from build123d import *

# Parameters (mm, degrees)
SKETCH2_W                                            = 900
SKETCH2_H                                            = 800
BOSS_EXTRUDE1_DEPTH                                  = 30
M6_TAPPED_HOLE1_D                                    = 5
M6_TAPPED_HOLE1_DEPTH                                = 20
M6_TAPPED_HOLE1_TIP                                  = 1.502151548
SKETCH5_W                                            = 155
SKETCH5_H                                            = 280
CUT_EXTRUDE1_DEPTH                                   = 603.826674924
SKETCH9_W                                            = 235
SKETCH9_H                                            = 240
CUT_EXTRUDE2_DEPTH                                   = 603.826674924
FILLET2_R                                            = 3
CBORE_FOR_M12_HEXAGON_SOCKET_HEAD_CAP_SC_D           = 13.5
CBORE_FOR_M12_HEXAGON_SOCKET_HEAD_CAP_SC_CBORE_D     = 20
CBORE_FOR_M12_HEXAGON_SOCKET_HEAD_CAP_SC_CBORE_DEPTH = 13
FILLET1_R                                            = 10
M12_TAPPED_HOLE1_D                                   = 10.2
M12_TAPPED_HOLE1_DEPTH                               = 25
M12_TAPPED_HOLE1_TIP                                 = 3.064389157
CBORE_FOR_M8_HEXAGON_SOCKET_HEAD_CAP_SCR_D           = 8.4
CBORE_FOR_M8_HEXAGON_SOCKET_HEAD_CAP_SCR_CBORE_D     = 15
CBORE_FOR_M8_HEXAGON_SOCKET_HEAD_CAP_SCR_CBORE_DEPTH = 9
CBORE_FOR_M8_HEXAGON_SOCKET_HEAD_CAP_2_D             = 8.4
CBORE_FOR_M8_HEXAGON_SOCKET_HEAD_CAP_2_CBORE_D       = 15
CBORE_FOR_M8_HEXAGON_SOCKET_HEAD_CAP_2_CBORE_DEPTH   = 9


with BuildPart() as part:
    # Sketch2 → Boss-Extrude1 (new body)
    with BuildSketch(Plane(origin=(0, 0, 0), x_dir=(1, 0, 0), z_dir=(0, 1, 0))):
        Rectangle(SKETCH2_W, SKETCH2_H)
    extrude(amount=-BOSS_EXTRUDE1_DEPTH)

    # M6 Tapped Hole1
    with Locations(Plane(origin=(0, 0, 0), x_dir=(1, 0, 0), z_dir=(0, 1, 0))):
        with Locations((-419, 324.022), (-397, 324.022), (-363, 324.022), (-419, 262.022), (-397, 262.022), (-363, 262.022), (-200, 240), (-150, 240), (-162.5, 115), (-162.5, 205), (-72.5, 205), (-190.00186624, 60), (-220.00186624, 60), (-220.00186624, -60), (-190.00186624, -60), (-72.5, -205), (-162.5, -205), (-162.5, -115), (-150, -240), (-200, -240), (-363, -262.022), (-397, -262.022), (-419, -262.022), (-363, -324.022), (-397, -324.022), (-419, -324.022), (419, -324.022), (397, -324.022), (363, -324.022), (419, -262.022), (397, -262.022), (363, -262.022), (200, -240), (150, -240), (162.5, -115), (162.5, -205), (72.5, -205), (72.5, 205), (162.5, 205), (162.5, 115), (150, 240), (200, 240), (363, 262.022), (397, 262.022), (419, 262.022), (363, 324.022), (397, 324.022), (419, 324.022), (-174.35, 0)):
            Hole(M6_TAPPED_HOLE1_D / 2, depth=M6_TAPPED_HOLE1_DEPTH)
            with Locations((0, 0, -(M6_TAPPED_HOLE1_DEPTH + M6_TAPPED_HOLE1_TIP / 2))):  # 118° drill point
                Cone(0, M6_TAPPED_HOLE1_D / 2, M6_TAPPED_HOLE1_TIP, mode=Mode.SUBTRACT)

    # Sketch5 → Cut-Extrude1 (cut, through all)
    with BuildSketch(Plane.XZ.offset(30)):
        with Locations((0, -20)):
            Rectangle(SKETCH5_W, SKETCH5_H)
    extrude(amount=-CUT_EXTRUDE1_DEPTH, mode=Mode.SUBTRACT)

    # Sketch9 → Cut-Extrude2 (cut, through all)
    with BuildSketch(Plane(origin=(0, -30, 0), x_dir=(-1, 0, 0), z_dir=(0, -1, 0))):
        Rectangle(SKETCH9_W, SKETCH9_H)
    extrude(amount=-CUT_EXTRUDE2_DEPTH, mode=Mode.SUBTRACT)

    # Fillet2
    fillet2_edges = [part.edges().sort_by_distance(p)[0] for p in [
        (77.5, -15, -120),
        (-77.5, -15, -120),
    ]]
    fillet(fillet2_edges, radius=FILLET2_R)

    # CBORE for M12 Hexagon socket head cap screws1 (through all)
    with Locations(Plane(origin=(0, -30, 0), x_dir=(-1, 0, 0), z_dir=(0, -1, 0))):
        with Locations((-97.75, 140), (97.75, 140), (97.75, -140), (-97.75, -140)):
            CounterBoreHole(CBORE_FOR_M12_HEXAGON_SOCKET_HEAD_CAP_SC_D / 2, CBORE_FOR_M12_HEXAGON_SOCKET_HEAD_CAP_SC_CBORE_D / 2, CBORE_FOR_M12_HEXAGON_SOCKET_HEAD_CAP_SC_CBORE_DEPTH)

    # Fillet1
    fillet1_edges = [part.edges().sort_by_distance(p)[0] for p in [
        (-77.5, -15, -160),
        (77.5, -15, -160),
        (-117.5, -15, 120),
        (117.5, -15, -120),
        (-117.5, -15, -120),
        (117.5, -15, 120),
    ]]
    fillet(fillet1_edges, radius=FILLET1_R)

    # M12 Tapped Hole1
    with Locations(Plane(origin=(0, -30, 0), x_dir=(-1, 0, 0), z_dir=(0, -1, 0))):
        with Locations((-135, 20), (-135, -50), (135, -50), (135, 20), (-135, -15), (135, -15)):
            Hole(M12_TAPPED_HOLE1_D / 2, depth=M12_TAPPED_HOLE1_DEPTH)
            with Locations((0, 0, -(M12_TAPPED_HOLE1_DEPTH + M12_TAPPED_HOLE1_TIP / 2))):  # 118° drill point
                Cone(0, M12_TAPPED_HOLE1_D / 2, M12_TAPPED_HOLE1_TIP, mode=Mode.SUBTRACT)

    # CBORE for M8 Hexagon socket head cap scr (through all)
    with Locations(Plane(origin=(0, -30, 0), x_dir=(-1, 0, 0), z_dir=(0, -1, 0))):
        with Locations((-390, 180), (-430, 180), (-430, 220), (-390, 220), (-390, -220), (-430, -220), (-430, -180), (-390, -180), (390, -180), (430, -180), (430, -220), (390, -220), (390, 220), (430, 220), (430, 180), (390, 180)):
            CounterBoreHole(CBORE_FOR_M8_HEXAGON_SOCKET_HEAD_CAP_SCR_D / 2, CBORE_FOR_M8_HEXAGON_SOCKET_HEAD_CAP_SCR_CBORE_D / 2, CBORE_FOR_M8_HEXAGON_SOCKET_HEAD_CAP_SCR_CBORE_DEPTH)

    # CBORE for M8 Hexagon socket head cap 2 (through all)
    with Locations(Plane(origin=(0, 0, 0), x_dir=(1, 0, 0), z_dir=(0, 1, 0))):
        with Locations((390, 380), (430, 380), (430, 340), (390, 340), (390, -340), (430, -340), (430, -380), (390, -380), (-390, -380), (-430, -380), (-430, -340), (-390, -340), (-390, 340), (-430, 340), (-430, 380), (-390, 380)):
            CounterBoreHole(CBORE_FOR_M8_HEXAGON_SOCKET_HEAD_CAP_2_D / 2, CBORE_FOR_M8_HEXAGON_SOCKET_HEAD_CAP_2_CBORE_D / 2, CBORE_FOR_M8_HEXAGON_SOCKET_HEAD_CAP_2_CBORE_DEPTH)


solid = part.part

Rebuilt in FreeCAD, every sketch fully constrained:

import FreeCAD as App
import Part
import Sketcher

V = App.Vector


def edges_at(feature, points):
    """Names of the edges that pass closest to the given points."""
    edges = feature.Shape.Edges
    near = lambda p: min(range(len(edges)), key=lambda i: edges[i].distToShape(Part.Vertex(*p))[0])
    return sorted({f"Edge{near(p) + 1}" for p in points})


def add_polygon(sketch, points):
    """Adds a closed chain of lines whose ends are joined by coincident constraints."""
    first, n = sketch.GeometryCount, len(points)
    for a, b in zip(points, points[1:] + points[:1]):
        sketch.addGeometry(Part.LineSegment(App.Vector(*a, 0), App.Vector(*b, 0)), False)
    for i in range(n):
        sketch.addConstraint(Sketcher.Constraint("Coincident", first + i, 2, first + (i + 1) % n, 1))

doc = App.newDocument("Part")
body = doc.addObject("PartDesign::Body", "Body")

# Sketch on XZ plane
sketch1 = doc.addObject("Sketcher::SketchObject", "Sketch")
body.addObject(sketch1)
sketch1.AttachmentSupport = (doc.XZ_Plane, [""])
sketch1.MapMode = "FlatFace"
add_polygon(sketch1, [(-450, -400), (-450, 400), (450, 400), (450, -400)])  # lines 0-3
sketch1.addConstraint([
    Sketcher.Constraint("Vertical", 0),
    Sketcher.Constraint("Horizontal", 1),
    Sketcher.Constraint("Vertical", 2),
    Sketcher.Constraint("Horizontal", 3),
    Sketcher.Constraint("Symmetric", 0, 2, 2, 2, -1, 1),
    Sketcher.Constraint("DistanceX", 1, 1, 1, 2, 900.0),
    Sketcher.Constraint("DistanceY", 0, 1, 0, 2, 800.0),
])
pad1 = doc.addObject("PartDesign::Pad", "Pad")
body.addObject(pad1)
pad1.Profile = sketch1
pad1.Length = 30

# Sketch on XZ plane
sketch2 = doc.addObject("Sketcher::SketchObject", "Sketch001")
body.addObject(sketch2)
sketch2.AttachmentSupport = (doc.XZ_Plane, [""])
sketch2.MapMode = "FlatFace"
sketch2.addGeometry([
    Part.Circle(V(-419, -324, 0), V(0, 0, 1), 2.5),  # 0
    Part.Circle(V(-397, -324, 0), V(0, 0, 1), 2.5),  # 1
    Part.Circle(V(-363, -324, 0), V(0, 0, 1), 2.5),  # 2
    Part.Circle(V(-419, -262, 0), V(0, 0, 1), 2.5),  # 3
    Part.Circle(V(-397, -262, 0), V(0, 0, 1), 2.5),  # 4
    Part.Circle(V(-363, -262, 0), V(0, 0, 1), 2.5),  # 5
    Part.Circle(V(-200, -240, 0), V(0, 0, 1), 2.5),  # 6
    Part.Circle(V(-150, -240, 0), V(0, 0, 1), 2.5),  # 7
    Part.Circle(V(-162.5, -115, 0), V(0, 0, 1), 2.5),  # 8
    Part.Circle(V(-162.5, -205, 0), V(0, 0, 1), 2.5),  # 9
    Part.Circle(V(-72.5, -205, 0), V(0, 0, 1), 2.5),  # 10
    Part.Circle(V(-190, -60, 0), V(0, 0, 1), 2.5),  # 11
    Part.Circle(V(-220, -60, 0), V(0, 0, 1), 2.5),  # 12
    Part.Circle(V(-220, 60, 0), V(0, 0, 1), 2.5),  # 13
    Part.Circle(V(-190, 60, 0), V(0, 0, 1), 2.5),  # 14
    Part.Circle(V(-72.5, 205, 0), V(0, 0, 1), 2.5),  # 15
    Part.Circle(V(-162.5, 205, 0), V(0, 0, 1), 2.5),  # 16
    Part.Circle(V(-162.5, 115, 0), V(0, 0, 1), 2.5),  # 17
    Part.Circle(V(-150, 240, 0), V(0, 0, 1), 2.5),  # 18
    Part.Circle(V(-200, 240, 0), V(0, 0, 1), 2.5),  # 19
    Part.Circle(V(-363, 262, 0), V(0, 0, 1), 2.5),  # 20
    Part.Circle(V(-397, 262, 0), V(0, 0, 1), 2.5),  # 21
    Part.Circle(V(-419, 262, 0), V(0, 0, 1), 2.5),  # 22
    Part.Circle(V(-363, 324, 0), V(0, 0, 1), 2.5),  # 23
    Part.Circle(V(-397, 324, 0), V(0, 0, 1), 2.5),  # 24
    Part.Circle(V(-419, 324, 0), V(0, 0, 1), 2.5),  # 25
    Part.Circle(V(419, 324, 0), V(0, 0, 1), 2.5),  # 26
    Part.Circle(V(397, 324, 0), V(0, 0, 1), 2.5),  # 27
    Part.Circle(V(363, 324, 0), V(0, 0, 1), 2.5),  # 28
    Part.Circle(V(419, 262, 0), V(0, 0, 1), 2.5),  # 29
    Part.Circle(V(397, 262, 0), V(0, 0, 1), 2.5),  # 30
    Part.Circle(V(363, 262, 0), V(0, 0, 1), 2.5),  # 31
    Part.Circle(V(200, 240, 0), V(0, 0, 1), 2.5),  # 32
    Part.Circle(V(150, 240, 0), V(0, 0, 1), 2.5),  # 33
    Part.Circle(V(162.5, 115, 0), V(0, 0, 1), 2.5),  # 34
    Part.Circle(V(162.5, 205, 0), V(0, 0, 1), 2.5),  # 35
    Part.Circle(V(72.5, 205, 0), V(0, 0, 1), 2.5),  # 36
    Part.Circle(V(72.5, -205, 0), V(0, 0, 1), 2.5),  # 37
    Part.Circle(V(162.5, -205, 0), V(0, 0, 1), 2.5),  # 38
    Part.Circle(V(162.5, -115, 0), V(0, 0, 1), 2.5),  # 39
    Part.Circle(V(150, -240, 0), V(0, 0, 1), 2.5),  # 40
    Part.Circle(V(200, -240, 0), V(0, 0, 1), 2.5),  # 41
    Part.Circle(V(363, -262, 0), V(0, 0, 1), 2.5),  # 42
    Part.Circle(V(397, -262, 0), V(0, 0, 1), 2.5),  # 43
    Part.Circle(V(419, -262, 0), V(0, 0, 1), 2.5),  # 44
    Part.Circle(V(363, -324, 0), V(0, 0, 1), 2.5),  # 45
    Part.Circle(V(397, -324, 0), V(0, 0, 1), 2.5),  # 46
    Part.Circle(V(419, -324, 0), V(0, 0, 1), 2.5),  # 47
    Part.Circle(V(-174.3, 0, 0), V(0, 0, 1), 2.5),  # 48
], False)
sketch2.addConstraint([
    Sketcher.Constraint("Equal", 0, 1),
    Sketcher.Constraint("Equal", 1, 2),
    Sketcher.Constraint("Equal", 2, 3),
    Sketcher.Constraint("Equal", 3, 4),
    Sketcher.Constraint("Equal", 4, 5),
    Sketcher.Constraint("Equal", 5, 6),
    Sketcher.Constraint("Equal", 6, 7),
    Sketcher.Constraint("Equal", 7, 8),
    Sketcher.Constraint("Equal", 8, 9),
    Sketcher.Constraint("Equal", 9, 10),
    Sketcher.Constraint("Equal", 10, 11),
    Sketcher.Constraint("Equal", 11, 12),
    Sketcher.Constraint("Equal", 12, 13),
    Sketcher.Constraint("Equal", 13, 14),
    Sketcher.Constraint("Equal", 14, 15),
    Sketcher.Constraint("Equal", 15, 16),
    Sketcher.Constraint("Equal", 16, 17),
    Sketcher.Constraint("Equal", 17, 18),
    Sketcher.Constraint("Equal", 18, 19),
    Sketcher.Constraint("Equal", 19, 20),
    Sketcher.Constraint("Equal", 20, 21),
    Sketcher.Constraint("Equal", 21, 22),
    Sketcher.Constraint("Equal", 22, 23),
    Sketcher.Constraint("Equal", 23, 24),
    Sketcher.Constraint("Equal", 24, 25),
    Sketcher.Constraint("Equal", 25, 26),
    Sketcher.Constraint("Equal", 26, 27),
    Sketcher.Constraint("Equal", 27, 28),
    Sketcher.Constraint("Equal", 28, 29),
    Sketcher.Constraint("Equal", 29, 30),
    Sketcher.Constraint("Equal", 30, 31),
    Sketcher.Constraint("Equal", 31, 32),
    Sketcher.Constraint("Equal", 32, 33),
    Sketcher.Constraint("Equal", 33, 34),
    Sketcher.Constraint("Equal", 34, 35),
    Sketcher.Constraint("Equal", 35, 36),
    Sketcher.Constraint("Equal", 36, 37),
    Sketcher.Constraint("Equal", 37, 38),
    Sketcher.Constraint("Equal", 38, 39),
    Sketcher.Constraint("Equal", 39, 40),
    Sketcher.Constraint("Equal", 40, 41),
    Sketcher.Constraint("Equal", 41, 42),
    Sketcher.Constraint("Equal", 42, 43),
    Sketcher.Constraint("Equal", 43, 44),
    Sketcher.Constraint("Equal", 44, 45),
    Sketcher.Constraint("Equal", 45, 46),
    Sketcher.Constraint("Equal", 46, 47),
    Sketcher.Constraint("Equal", 47, 48),
    Sketcher.Constraint("Symmetric", 0, 3, 26, 3, -1, 1),
    Sketcher.Constraint("Symmetric", 1, 3, 27, 3, -1, 1),
    Sketcher.Constraint("Symmetric", 2, 3, 28, 3, -1, 1),
    Sketcher.Constraint("Symmetric", 3, 3, 29, 3, -1, 1),
    Sketcher.Constraint("Symmetric", 4, 3, 30, 3, -1, 1),
    Sketcher.Constraint("Symmetric", 5, 3, 31, 3, -1, 1),
    Sketcher.Constraint("Symmetric", 6, 3, 32, 3, -1, 1),
    Sketcher.Constraint("Symmetric", 7, 3, 33, 3, -1, 1),
    Sketcher.Constraint("Symmetric", 8, 3, 34, 3, -1, 1),
    Sketcher.Constraint("Symmetric", 9, 3, 35, 3, -1, 1),
    Sketcher.Constraint("Symmetric", 10, 3, 36, 3, -1, 1),
    Sketcher.Constraint("Symmetric", 15, 3, 37, 3, -1, 1),
    Sketcher.Constraint("Symmetric", 16, 3, 38, 3, -1, 1),
    Sketcher.Constraint("Symmetric", 17, 3, 39, 3, -1, 1),
    Sketcher.Constraint("Symmetric", 18, 3, 40, 3, -1, 1),
    Sketcher.Constraint("Symmetric", 19, 3, 41, 3, -1, 1),
    Sketcher.Constraint("Symmetric", 20, 3, 42, 3, -1, 1),
    Sketcher.Constraint("Symmetric", 21, 3, 43, 3, -1, 1),
    Sketcher.Constraint("Symmetric", 22, 3, 44, 3, -1, 1),
    Sketcher.Constraint("Symmetric", 23, 3, 45, 3, -1, 1),
    Sketcher.Constraint("Symmetric", 24, 3, 46, 3, -1, 1),
    Sketcher.Constraint("Symmetric", 25, 3, 47, 3, -1, 1),
    Sketcher.Constraint("Symmetric", 25, 3, 26, 3, -2),
    Sketcher.Constraint("Symmetric", 24, 3, 27, 3, -2),
    Sketcher.Constraint("Symmetric", 23, 3, 28, 3, -2),
    Sketcher.Constraint("Symmetric", 22, 3, 29, 3, -2),
    Sketcher.Constraint("Symmetric", 21, 3, 30, 3, -2),
    Sketcher.Constraint("Symmetric", 20, 3, 31, 3, -2),
    Sketcher.Constraint("Symmetric", 19, 3, 32, 3, -2),
    Sketcher.Constraint("Symmetric", 18, 3, 33, 3, -2),
    Sketcher.Constraint("Symmetric", 17, 3, 34, 3, -2),
    Sketcher.Constraint("Symmetric", 16, 3, 35, 3, -2),
    Sketcher.Constraint("Symmetric", 15, 3, 36, 3, -2),
    Sketcher.Constraint("Symmetric", 12, 3, 13, 3, -1),
    Sketcher.Constraint("Symmetric", 11, 3, 14, 3, -1),
    Sketcher.Constraint("PointOnObject", 48, 3, -1),
    Sketcher.Constraint("Horizontal", 0, 3, 1, 3),
    Sketcher.Constraint("Horizontal", 1, 3, 2, 3),
    Sketcher.Constraint("Horizontal", 3, 3, 4, 3),
    Sketcher.Constraint("Horizontal", 4, 3, 5, 3),
    Sketcher.Constraint("Horizontal", 6, 3, 7, 3),
    Sketcher.Constraint("Horizontal", 9, 3, 10, 3),
    Sketcher.Constraint("Horizontal", 11, 3, 12, 3),
    Sketcher.Constraint("Vertical", 0, 3, 3, 3),
    Sketcher.Constraint("Vertical", 1, 3, 4, 3),
    Sketcher.Constraint("Vertical", 2, 3, 5, 3),
    Sketcher.Constraint("Vertical", 8, 3, 9, 3),
    Sketcher.Constraint("Diameter", 0, 5.0),
    Sketcher.Constraint("DistanceX", 0, 3, -1, 1, 419.0),
    Sketcher.Constraint("DistanceX", 1, 3, -1, 1, 397.0),
    Sketcher.Constraint("DistanceX", 2, 3, -1, 1, 363.0),
    Sketcher.Constraint("DistanceX", 6, 3, -1, 1, 200.0),
    Sketcher.Constraint("DistanceY", 6, 3, -1, 1, 240.0),
    Sketcher.Constraint("DistanceX", 7, 3, -1, 1, 150.0),
    Sketcher.Constraint("DistanceY", 8, 3, -1, 1, 115.0),
    Sketcher.Constraint("DistanceY", 9, 3, -1, 1, 205.0),
    Sketcher.Constraint("DistanceY", 11, 3, -1, 1, 60.0),
    Sketcher.Constraint("DistanceY", 0, 3, 3, 3, 62.0),
    Sketcher.Constraint("DistanceX", 9, 3, 10, 3, 90.0),
    Sketcher.Constraint("DistanceX", 12, 3, 11, 3, 30.0),
    Sketcher.Constraint("DistanceX", 15, 3, 34, 3, 235.0),
    Sketcher.Constraint("DistanceX", 48, 3, -1, 1, 174.35),
    Sketcher.Constraint("DistanceY", 0, 3, -1, 1, 324.022),
    Sketcher.Constraint("DistanceX", 11, 3, -1, 1, 190.001866),
])
doc.recompute()
hole = doc.addObject("PartDesign::Hole", "Hole")
body.addObject(hole)
hole.Profile = sketch2
hole.ThreadType = "None"
hole.Diameter = 5
hole.DepthType = "Dimension"
hole.Depth = 20
hole.DrillPoint = "Angled"
hole.DrillPointAngle = 118
hole.Reversed = True

# Sketch on XZ plane
sketch3 = doc.addObject("Sketcher::SketchObject", "Sketch002")
body.addObject(sketch3)
sketch3.AttachmentSupport = (doc.XZ_Plane, [""])
sketch3.MapMode = "FlatFace"
sketch3.AttachmentOffset = App.Placement(V(0, 0, 30), App.Rotation())
add_polygon(sketch3, [(-78, 120), (-78, -160), (78, -160), (78, 120)])  # lines 0-3
sketch3.addConstraint([
    Sketcher.Constraint("Vertical", 0),
    Sketcher.Constraint("Horizontal", 1),
    Sketcher.Constraint("Vertical", 2),
    Sketcher.Constraint("Horizontal", 3),
    Sketcher.Constraint("DistanceX", 1, 1, 1, 2, 155.0),
    Sketcher.Constraint("DistanceY", 0, 2, 0, 1, 280.0),
    Sketcher.Constraint("DistanceY", 0, 2, -1, 1, 160.0),
    Sketcher.Constraint("DistanceX", 0, 2, -1, 1, 77.5),
])
pocket1 = doc.addObject("PartDesign::Pocket", "Pocket")
body.addObject(pocket1)
pocket1.Profile = sketch3
pocket1.Type = "ThroughAll"

# Sketch on XZ plane
sketch4 = doc.addObject("Sketcher::SketchObject", "Sketch003")
body.addObject(sketch4)
sketch4.AttachmentSupport = (doc.XZ_Plane, [""])
sketch4.MapMode = "FlatFace"
sketch4.AttachmentOffset = App.Placement(V(0, 0, 30), App.Rotation())
add_polygon(sketch4, [(118, -120), (118, 120), (-118, 120), (-118, -120)])  # lines 0-3
sketch4.addConstraint([
    Sketcher.Constraint("Vertical", 0),
    Sketcher.Constraint("Horizontal", 1),
    Sketcher.Constraint("Vertical", 2),
    Sketcher.Constraint("Horizontal", 3),
    Sketcher.Constraint("Symmetric", 0, 2, 2, 2, -1, 1),
    Sketcher.Constraint("DistanceX", 1, 2, 1, 1, 235.0),
    Sketcher.Constraint("DistanceY", 0, 1, 0, 2, 240.0),
])
pocket2 = doc.addObject("PartDesign::Pocket", "Pocket001")
body.addObject(pocket2)
pocket2.Profile = sketch4
pocket2.Type = "ThroughAll"
doc.recompute()

fillet = doc.addObject("PartDesign::Fillet", "Fillet")
body.addObject(fillet)
fillet.Base = (pocket2, edges_at(pocket2, [(77.5, -15, -120), (-77.5, -15, -120)]))
fillet.Radius = 3

# Sketch on XZ plane
sketch5 = doc.addObject("Sketcher::SketchObject", "Sketch004")
body.addObject(sketch5)
sketch5.AttachmentSupport = (doc.XZ_Plane, [""])
sketch5.MapMode = "FlatFace"
sketch5.AttachmentOffset = App.Placement(V(0, 0, 30), App.Rotation())
sketch5.addGeometry([
    Part.Circle(V(98, -140, 0), V(0, 0, 1), 7),
    Part.Circle(V(-98, -140, 0), V(0, 0, 1), 7),
    Part.Circle(V(-98, 140, 0), V(0, 0, 1), 7),
    Part.Circle(V(98, 140, 0), V(0, 0, 1), 7),
], False)
sketch5.addConstraint([
    Sketcher.Constraint("Equal", 0, 1),
    Sketcher.Constraint("Equal", 1, 2),
    Sketcher.Constraint("Equal", 2, 3),
    Sketcher.Constraint("Symmetric", 0, 3, 2, 3, -1, 1),
    Sketcher.Constraint("Symmetric", 1, 3, 3, 3, -1, 1),
    Sketcher.Constraint("Symmetric", 0, 3, 1, 3, -2),
    Sketcher.Constraint("Diameter", 0, 13.5),
    Sketcher.Constraint("DistanceY", 0, 3, -1, 1, 140.0),
    Sketcher.Constraint("DistanceX", 1, 3, 0, 3, 195.5),
])
doc.recompute()
hole2 = doc.addObject("PartDesign::Hole", "Hole001")
body.addObject(hole2)
hole2.Profile = sketch5
hole2.ThreadType = "None"
hole2.Diameter = 13.5
hole2.DepthType = "ThroughAll"
hole2.HoleCutType = "Counterbore"
hole2.HoleCutDiameter = 20
hole2.HoleCutDepth = 13
doc.recompute()

fillet2 = doc.addObject("PartDesign::Fillet", "Fillet001")
body.addObject(fillet2)
fillet2.Base = (hole2, edges_at(hole2, [
    (-77.5, -15, -160),
    (77.5, -15, -160),
    (-117.5, -15, 120),
    (117.5, -15, -120),
    (-117.5, -15, -120),
    (117.5, -15, 120),
]))
fillet2.Radius = 10

# Sketch on XZ plane
sketch6 = doc.addObject("Sketcher::SketchObject", "Sketch005")
body.addObject(sketch6)
sketch6.AttachmentSupport = (doc.XZ_Plane, [""])
sketch6.MapMode = "FlatFace"
sketch6.AttachmentOffset = App.Placement(V(0, 0, 30), App.Rotation())
sketch6.addGeometry([
    Part.Circle(V(135, -20, 0), V(0, 0, 1), 5),  # 0
    Part.Circle(V(135, 50, 0), V(0, 0, 1), 5),  # 1
    Part.Circle(V(-135, 50, 0), V(0, 0, 1), 5),  # 2
    Part.Circle(V(-135, -20, 0), V(0, 0, 1), 5),  # 3
    Part.Circle(V(135, 15, 0), V(0, 0, 1), 5),  # 4
    Part.Circle(V(-135, 15, 0), V(0, 0, 1), 5),  # 5
], False)
sketch6.addConstraint([
    Sketcher.Constraint("Equal", 0, 1),
    Sketcher.Constraint("Equal", 1, 2),
    Sketcher.Constraint("Equal", 2, 3),
    Sketcher.Constraint("Equal", 3, 4),
    Sketcher.Constraint("Equal", 4, 5),
    Sketcher.Constraint("Symmetric", 1, 3, 2, 3, -2),
    Sketcher.Constraint("Symmetric", 0, 3, 3, 3, -2),
    Sketcher.Constraint("Symmetric", 4, 3, 5, 3, -2),
    Sketcher.Constraint("Vertical", 0, 3, 1, 3),
    Sketcher.Constraint("Vertical", 1, 3, 4, 3),
    Sketcher.Constraint("Diameter", 0, 10.2),
    Sketcher.Constraint("DistanceX", -1, 1, 0, 3, 135.0),
    Sketcher.Constraint("DistanceY", 0, 3, -1, 1, 20.0),
    Sketcher.Constraint("DistanceY", -1, 1, 1, 3, 50.0),
    Sketcher.Constraint("DistanceY", -1, 1, 4, 3, 15.0),
])
doc.recompute()
hole3 = doc.addObject("PartDesign::Hole", "Hole002")
body.addObject(hole3)
hole3.Profile = sketch6
hole3.ThreadType = "None"
hole3.Diameter = 10.2
hole3.DepthType = "Dimension"
hole3.Depth = 25
hole3.DrillPoint = "Angled"
hole3.DrillPointAngle = 118

# Sketch on XZ plane
sketch7 = doc.addObject("Sketcher::SketchObject", "Sketch006")
body.addObject(sketch7)
sketch7.AttachmentSupport = (doc.XZ_Plane, [""])
sketch7.MapMode = "FlatFace"
sketch7.AttachmentOffset = App.Placement(V(0, 0, 30), App.Rotation())
sketch7.addGeometry([
    Part.Circle(V(390, -180, 0), V(0, 0, 1), 4.2),  # 0
    Part.Circle(V(430, -180, 0), V(0, 0, 1), 4.2),  # 1
    Part.Circle(V(430, -220, 0), V(0, 0, 1), 4.2),  # 2
    Part.Circle(V(390, -220, 0), V(0, 0, 1), 4.2),  # 3
    Part.Circle(V(390, 220, 0), V(0, 0, 1), 4.2),  # 4
    Part.Circle(V(430, 220, 0), V(0, 0, 1), 4.2),  # 5
    Part.Circle(V(430, 180, 0), V(0, 0, 1), 4.2),  # 6
    Part.Circle(V(390, 180, 0), V(0, 0, 1), 4.2),  # 7
    Part.Circle(V(-390, 180, 0), V(0, 0, 1), 4.2),  # 8
    Part.Circle(V(-430, 180, 0), V(0, 0, 1), 4.2),  # 9
    Part.Circle(V(-430, 220, 0), V(0, 0, 1), 4.2),  # 10
    Part.Circle(V(-390, 220, 0), V(0, 0, 1), 4.2),  # 11
    Part.Circle(V(-390, -220, 0), V(0, 0, 1), 4.2),  # 12
    Part.Circle(V(-430, -220, 0), V(0, 0, 1), 4.2),  # 13
    Part.Circle(V(-430, -180, 0), V(0, 0, 1), 4.2),  # 14
    Part.Circle(V(-390, -180, 0), V(0, 0, 1), 4.2),  # 15
], False)
sketch7.addConstraint([
    Sketcher.Constraint("Equal", 0, 1),
    Sketcher.Constraint("Equal", 1, 2),
    Sketcher.Constraint("Equal", 2, 3),
    Sketcher.Constraint("Equal", 3, 4),
    Sketcher.Constraint("Equal", 4, 5),
    Sketcher.Constraint("Equal", 5, 6),
    Sketcher.Constraint("Equal", 6, 7),
    Sketcher.Constraint("Equal", 7, 8),
    Sketcher.Constraint("Equal", 8, 9),
    Sketcher.Constraint("Equal", 9, 10),
    Sketcher.Constraint("Equal", 10, 11),
    Sketcher.Constraint("Equal", 11, 12),
    Sketcher.Constraint("Equal", 12, 13),
    Sketcher.Constraint("Equal", 13, 14),
    Sketcher.Constraint("Equal", 14, 15),
    Sketcher.Constraint("Symmetric", 0, 3, 8, 3, -1, 1),
    Sketcher.Constraint("Symmetric", 1, 3, 9, 3, -1, 1),
    Sketcher.Constraint("Symmetric", 2, 3, 10, 3, -1, 1),
    Sketcher.Constraint("Symmetric", 3, 3, 11, 3, -1, 1),
    Sketcher.Constraint("Symmetric", 4, 3, 12, 3, -1, 1),
    Sketcher.Constraint("Symmetric", 5, 3, 13, 3, -1, 1),
    Sketcher.Constraint("Symmetric", 6, 3, 14, 3, -1, 1),
    Sketcher.Constraint("Symmetric", 7, 3, 15, 3, -1, 1),
    Sketcher.Constraint("Symmetric", 7, 3, 8, 3, -2),
    Sketcher.Constraint("Symmetric", 6, 3, 9, 3, -2),
    Sketcher.Constraint("Symmetric", 5, 3, 10, 3, -2),
    Sketcher.Constraint("Symmetric", 4, 3, 11, 3, -2),
    Sketcher.Constraint("Horizontal", 0, 3, 1, 3),
    Sketcher.Constraint("Horizontal", 2, 3, 3, 3),
    Sketcher.Constraint("Vertical", 1, 3, 2, 3),
    Sketcher.Constraint("Vertical", 0, 3, 3, 3),
    Sketcher.Constraint("Diameter", 0, 8.4),
    Sketcher.Constraint("DistanceX", -1, 1, 0, 3, 390.0),
    Sketcher.Constraint("DistanceY", 0, 3, -1, 1, 180.0),
    Sketcher.Constraint("DistanceX", -1, 1, 1, 3, 430.0),
    Sketcher.Constraint("DistanceY", 2, 3, -1, 1, 220.0),
])
doc.recompute()
hole4 = doc.addObject("PartDesign::Hole", "Hole003")
body.addObject(hole4)
hole4.Profile = sketch7
hole4.ThreadType = "None"
hole4.Diameter = 8.4
hole4.DepthType = "ThroughAll"
hole4.HoleCutType = "Counterbore"
hole4.HoleCutDiameter = 15
hole4.HoleCutDepth = 9

# Sketch on XZ plane
sketch8 = doc.addObject("Sketcher::SketchObject", "Sketch007")
body.addObject(sketch8)
sketch8.AttachmentSupport = (doc.XZ_Plane, [""])
sketch8.MapMode = "FlatFace"
sketch8.addGeometry([
    Part.Circle(V(390, -380, 0), V(0, 0, 1), 4.2),  # 0
    Part.Circle(V(430, -380, 0), V(0, 0, 1), 4.2),  # 1
    Part.Circle(V(430, -340, 0), V(0, 0, 1), 4.2),  # 2
    Part.Circle(V(390, -340, 0), V(0, 0, 1), 4.2),  # 3
    Part.Circle(V(390, 340, 0), V(0, 0, 1), 4.2),  # 4
    Part.Circle(V(430, 340, 0), V(0, 0, 1), 4.2),  # 5
    Part.Circle(V(430, 380, 0), V(0, 0, 1), 4.2),  # 6
    Part.Circle(V(390, 380, 0), V(0, 0, 1), 4.2),  # 7
    Part.Circle(V(-390, 380, 0), V(0, 0, 1), 4.2),  # 8
    Part.Circle(V(-430, 380, 0), V(0, 0, 1), 4.2),  # 9
    Part.Circle(V(-430, 340, 0), V(0, 0, 1), 4.2),  # 10
    Part.Circle(V(-390, 340, 0), V(0, 0, 1), 4.2),  # 11
    Part.Circle(V(-390, -340, 0), V(0, 0, 1), 4.2),  # 12
    Part.Circle(V(-430, -340, 0), V(0, 0, 1), 4.2),  # 13
    Part.Circle(V(-430, -380, 0), V(0, 0, 1), 4.2),  # 14
    Part.Circle(V(-390, -380, 0), V(0, 0, 1), 4.2),  # 15
], False)
sketch8.addConstraint([
    Sketcher.Constraint("Equal", 0, 1),
    Sketcher.Constraint("Equal", 1, 2),
    Sketcher.Constraint("Equal", 2, 3),
    Sketcher.Constraint("Equal", 3, 4),
    Sketcher.Constraint("Equal", 4, 5),
    Sketcher.Constraint("Equal", 5, 6),
    Sketcher.Constraint("Equal", 6, 7),
    Sketcher.Constraint("Equal", 7, 8),
    Sketcher.Constraint("Equal", 8, 9),
    Sketcher.Constraint("Equal", 9, 10),
    Sketcher.Constraint("Equal", 10, 11),
    Sketcher.Constraint("Equal", 11, 12),
    Sketcher.Constraint("Equal", 12, 13),
    Sketcher.Constraint("Equal", 13, 14),
    Sketcher.Constraint("Equal", 14, 15),
    Sketcher.Constraint("Symmetric", 0, 3, 8, 3, -1, 1),
    Sketcher.Constraint("Symmetric", 1, 3, 9, 3, -1, 1),
    Sketcher.Constraint("Symmetric", 2, 3, 10, 3, -1, 1),
    Sketcher.Constraint("Symmetric", 3, 3, 11, 3, -1, 1),
    Sketcher.Constraint("Symmetric", 4, 3, 12, 3, -1, 1),
    Sketcher.Constraint("Symmetric", 5, 3, 13, 3, -1, 1),
    Sketcher.Constraint("Symmetric", 6, 3, 14, 3, -1, 1),
    Sketcher.Constraint("Symmetric", 7, 3, 15, 3, -1, 1),
    Sketcher.Constraint("Symmetric", 7, 3, 8, 3, -2),
    Sketcher.Constraint("Symmetric", 6, 3, 9, 3, -2),
    Sketcher.Constraint("Symmetric", 5, 3, 10, 3, -2),
    Sketcher.Constraint("Symmetric", 4, 3, 11, 3, -2),
    Sketcher.Constraint("Horizontal", 0, 3, 1, 3),
    Sketcher.Constraint("Horizontal", 2, 3, 3, 3),
    Sketcher.Constraint("Vertical", 1, 3, 2, 3),
    Sketcher.Constraint("Vertical", 0, 3, 3, 3),
    Sketcher.Constraint("Diameter", 0, 8.4),
    Sketcher.Constraint("DistanceX", -1, 1, 0, 3, 390.0),
    Sketcher.Constraint("DistanceY", 0, 3, -1, 1, 380.0),
    Sketcher.Constraint("DistanceX", -1, 1, 1, 3, 430.0),
    Sketcher.Constraint("DistanceY", 2, 3, -1, 1, 340.0),
])
doc.recompute()
hole5 = doc.addObject("PartDesign::Hole", "Hole004")
body.addObject(hole5)
hole5.Profile = sketch8
hole5.ThreadType = "None"
hole5.Diameter = 8.4
hole5.DepthType = "ThroughAll"
hole5.HoleCutType = "Counterbore"
hole5.HoleCutDiameter = 15
hole5.HoleCutDepth = 9
hole5.Reversed = True

doc.recompute()
